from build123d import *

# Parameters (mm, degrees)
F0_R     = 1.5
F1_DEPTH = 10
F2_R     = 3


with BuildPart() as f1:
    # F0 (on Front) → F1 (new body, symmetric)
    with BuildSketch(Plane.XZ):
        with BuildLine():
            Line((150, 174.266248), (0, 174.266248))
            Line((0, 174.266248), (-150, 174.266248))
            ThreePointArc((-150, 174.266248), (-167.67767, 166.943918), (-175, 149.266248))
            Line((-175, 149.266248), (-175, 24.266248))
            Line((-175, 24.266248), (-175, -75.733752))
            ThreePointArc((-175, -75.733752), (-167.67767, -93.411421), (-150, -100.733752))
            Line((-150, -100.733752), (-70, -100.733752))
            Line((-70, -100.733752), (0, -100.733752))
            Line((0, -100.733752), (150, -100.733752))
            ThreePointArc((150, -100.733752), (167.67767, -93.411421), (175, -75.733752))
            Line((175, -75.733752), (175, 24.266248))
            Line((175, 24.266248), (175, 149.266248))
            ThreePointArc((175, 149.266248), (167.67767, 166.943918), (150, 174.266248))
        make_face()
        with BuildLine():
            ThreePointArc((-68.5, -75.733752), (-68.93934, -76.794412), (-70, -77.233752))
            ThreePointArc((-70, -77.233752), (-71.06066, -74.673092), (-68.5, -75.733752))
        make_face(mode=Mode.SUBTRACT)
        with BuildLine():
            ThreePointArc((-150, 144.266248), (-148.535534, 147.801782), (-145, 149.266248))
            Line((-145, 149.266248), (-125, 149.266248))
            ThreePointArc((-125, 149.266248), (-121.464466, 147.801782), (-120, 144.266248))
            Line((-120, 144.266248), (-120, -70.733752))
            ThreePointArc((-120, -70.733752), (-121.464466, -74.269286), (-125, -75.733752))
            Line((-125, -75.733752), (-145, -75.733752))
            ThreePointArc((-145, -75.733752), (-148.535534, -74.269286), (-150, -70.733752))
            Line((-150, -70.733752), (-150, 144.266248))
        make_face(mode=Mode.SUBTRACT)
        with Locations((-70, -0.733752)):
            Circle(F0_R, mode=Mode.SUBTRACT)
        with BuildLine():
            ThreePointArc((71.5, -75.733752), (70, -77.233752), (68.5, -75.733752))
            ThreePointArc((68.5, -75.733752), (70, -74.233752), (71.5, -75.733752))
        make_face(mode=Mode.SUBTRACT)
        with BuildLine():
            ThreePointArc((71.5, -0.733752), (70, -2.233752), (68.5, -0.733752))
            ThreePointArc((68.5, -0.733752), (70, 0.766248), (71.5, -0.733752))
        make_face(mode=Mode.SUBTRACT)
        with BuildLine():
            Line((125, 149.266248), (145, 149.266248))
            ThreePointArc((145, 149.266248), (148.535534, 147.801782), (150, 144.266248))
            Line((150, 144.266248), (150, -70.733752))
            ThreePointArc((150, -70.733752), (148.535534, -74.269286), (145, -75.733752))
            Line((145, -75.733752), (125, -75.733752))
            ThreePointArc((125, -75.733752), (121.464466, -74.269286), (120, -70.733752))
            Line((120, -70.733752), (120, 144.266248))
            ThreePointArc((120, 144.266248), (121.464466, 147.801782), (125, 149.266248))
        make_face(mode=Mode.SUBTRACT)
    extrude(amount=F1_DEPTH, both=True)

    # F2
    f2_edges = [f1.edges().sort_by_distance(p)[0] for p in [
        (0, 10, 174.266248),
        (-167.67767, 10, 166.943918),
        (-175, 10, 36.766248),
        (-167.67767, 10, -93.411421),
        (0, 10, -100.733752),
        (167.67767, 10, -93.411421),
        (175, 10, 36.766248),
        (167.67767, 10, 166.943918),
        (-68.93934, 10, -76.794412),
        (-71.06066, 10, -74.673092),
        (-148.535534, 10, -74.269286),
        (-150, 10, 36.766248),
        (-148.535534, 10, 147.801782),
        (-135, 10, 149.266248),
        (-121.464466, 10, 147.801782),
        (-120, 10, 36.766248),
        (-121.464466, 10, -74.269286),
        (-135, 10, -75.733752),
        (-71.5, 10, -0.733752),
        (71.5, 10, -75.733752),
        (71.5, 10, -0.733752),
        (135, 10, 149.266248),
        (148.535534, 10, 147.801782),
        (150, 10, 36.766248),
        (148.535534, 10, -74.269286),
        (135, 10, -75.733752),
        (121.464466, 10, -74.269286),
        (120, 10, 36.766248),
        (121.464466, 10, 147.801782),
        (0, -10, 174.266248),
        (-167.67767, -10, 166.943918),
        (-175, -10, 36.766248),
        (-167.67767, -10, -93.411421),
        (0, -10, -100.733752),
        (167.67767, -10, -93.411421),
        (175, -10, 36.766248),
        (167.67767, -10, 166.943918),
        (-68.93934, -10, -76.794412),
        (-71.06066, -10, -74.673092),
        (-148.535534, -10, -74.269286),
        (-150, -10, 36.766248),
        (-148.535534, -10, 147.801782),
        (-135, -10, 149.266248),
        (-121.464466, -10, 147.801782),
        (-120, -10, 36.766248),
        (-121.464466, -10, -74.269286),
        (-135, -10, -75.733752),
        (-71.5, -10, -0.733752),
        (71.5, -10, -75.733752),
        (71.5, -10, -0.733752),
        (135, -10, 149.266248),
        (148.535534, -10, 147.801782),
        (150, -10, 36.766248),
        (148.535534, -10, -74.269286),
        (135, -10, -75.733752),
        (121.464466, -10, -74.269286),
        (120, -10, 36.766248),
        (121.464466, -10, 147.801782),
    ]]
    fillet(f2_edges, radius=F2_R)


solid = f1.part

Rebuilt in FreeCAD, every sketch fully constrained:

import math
import FreeCAD as App
import Part
import Sketcher

V = App.Vector


def edges_at(feature, points):
    """Names of the edges that pass closest to the given points."""
    edges = feature.Shape.Edges
    near = lambda p: min(range(len(edges)), key=lambda i: edges[i].distToShape(Part.Vertex(*p))[0])
    return sorted({f"Edge{near(p) + 1}" for p in points})

doc = App.newDocument("Part")
params = doc.addObject("Spreadsheet::Sheet", "Params")
for row, (alias, value) in enumerate([
    ("sketch1_diameter", "3 mm"),
    ("sketch1_radius", "24.999998 mm"),
    ("sketch1_radius2", "5 mm"),
    ("sketch1_width", "300 mm"),
    ("sketch1_width2", "20 mm"),
    ("pad1_length", "20 mm"),
    ("fillet_radius", "3 mm"),
], start=1):
    params.set(f"A{row}", alias)
    params.set(f"B{row}", "=" + value)
    params.setAlias(f"B{row}", alias)

body = doc.addObject("PartDesign::Body", "Body")

sketch1 = body.newObject("Sketcher::SketchObject", "Sketch")
sketch1.AttachmentSupport = (doc.getObject("XZ_Plane"), [""])
sketch1.MapMode = "FlatFace"
sketch1.addGeometry([
    Part.LineSegment(V(150, 174.3, 0), V(-150, 174.3, 0)),
    Part.ArcOfCircle(Part.Circle(V(-150, 149.3, 0), V(0, 0, 1), 25), math.radians(90), math.radians(180)),
    Part.LineSegment(V(-175, 149.3, 0), V(-175, -75.7, 0)),
    Part.ArcOfCircle(Part.Circle(V(-150, -75.7, 0), V(0, 0, 1), 25), math.radians(-180), math.radians(-90)),
    Part.LineSegment(V(-150, -100.7, 0), V(150, -100.7, 0)),
    Part.ArcOfCircle(Part.Circle(V(150, -75.7, 0), V(0, 0, 1), 25), math.radians(-90), math.radians(0)),
    Part.LineSegment(V(175, -75.7, 0), V(175, 149.3, 0)),
    Part.ArcOfCircle(Part.Circle(V(150, 149.3, 0), V(0, 0, 1), 25), math.radians(0), math.radians(90)),
    Part.ArcOfCircle(Part.Circle(V(-70, -75.7, 0), V(0, 0, 1), 1.5), math.radians(0), math.radians(270)),
    Part.ArcOfCircle(Part.Circle(V(-70, -75.7, 0), V(0, 0, 1), 1.5), math.radians(-90), math.radians(0)),
    Part.Circle(V(-70, -0.7, 0), V(0, 0, 1), 1.5),
    Part.Circle(V(70, -75.7, 0), V(0, 0, 1), 1.5),
    Part.Circle(V(70, -0.7, 0), V(0, 0, 1), 1.5),
    Part.LineSegment(V(-150, -70.7, 0), V(-150, 144.3, 0)),
    Part.ArcOfCircle(Part.Circle(V(-145, 144.3, 0), V(0, 0, 1), 5), math.radians(90), math.radians(180)),
    Part.LineSegment(V(-145, 149.3, 0), V(-125, 149.3, 0)),
    Part.ArcOfCircle(Part.Circle(V(-125, 144.3, 0), V(0, 0, 1), 5), math.radians(0), math.radians(90)),
    Part.LineSegment(V(-120, 144.3, 0), V(-120, -70.7, 0)),
    Part.ArcOfCircle(Part.Circle(V(-125, -70.7, 0), V(0, 0, 1), 5), math.radians(-90), math.radians(0)),
    Part.LineSegment(V(-125, -75.7, 0), V(-145, -75.7, 0)),
    Part.ArcOfCircle(Part.Circle(V(-145, -70.7, 0), V(0, 0, 1), 5), math.radians(180), math.radians(270)),
    Part.ArcOfCircle(Part.Circle(V(125, 144.3, 0), V(0, 0, 1), 5), math.radians(90), math.radians(180)),
    Part.LineSegment(V(125, 149.3, 0), V(145, 149.3, 0)),
    Part.ArcOfCircle(Part.Circle(V(145, 144.3, 0), V(0, 0, 1), 5), math.radians(0), math.radians(90)),
    Part.LineSegment(V(150, 144.3, 0), V(150, -70.7, 0)),
    Part.ArcOfCircle(Part.Circle(V(145, -70.7, 0), V(0, 0, 1), 5), math.radians(-90), math.radians(0)),
    Part.LineSegment(V(145, -75.7, 0), V(125, -75.7, 0)),
    Part.ArcOfCircle(Part.Circle(V(125, -70.7, 0), V(0, 0, 1), 5), math.radians(180), math.radians(270)),
    Part.LineSegment(V(120, -70.7, 0), V(120, 144.3, 0)),
], False)
sketch1.addConstraint([
    Sketcher.Constraint("Tangent", 0, 2, 1, 1),
    Sketcher.Constraint("Tangent", 1, 2, 2, 1),
    Sketcher.Constraint("Tangent", 2, 2, 3, 1),
    Sketcher.Constraint("Tangent", 3, 2, 4, 1),
    Sketcher.Constraint("Tangent", 4, 2, 5, 1),
    Sketcher.Constraint("Tangent", 5, 2, 6, 1),
    Sketcher.Constraint("Tangent", 6, 2, 7, 1),
    Sketcher.Constraint("Tangent", 7, 2, 0, 1),
    Sketcher.Constraint("Tangent", 8, 1, 9, 2),
    Sketcher.Constraint("Coincident", 9, 1, 8, 2),
    Sketcher.Constraint("Tangent", 13, 2, 14, 2),
    Sketcher.Constraint("Tangent", 14, 1, 15, 1),
    Sketcher.Constraint("Tangent", 15, 2, 16, 2),
    Sketcher.Constraint("Tangent", 16, 1, 17, 1),
    Sketcher.Constraint("Tangent", 17, 2, 18, 2),
    Sketcher.Constraint("Tangent", 18, 1, 19, 1),
    Sketcher.Constraint("Tangent", 19, 2, 20, 2),
    Sketcher.Constraint("Tangent", 20, 1, 13, 1),
    Sketcher.Constraint("Tangent", 21, 1, 22, 1),
    Sketcher.Constraint("Tangent", 22, 2, 23, 2),
    Sketcher.Constraint("Tangent", 23, 1, 24, 1),
    Sketcher.Constraint("Tangent", 24, 2, 25, 2),
    Sketcher.Constraint("Tangent", 25, 1, 26, 1),
    Sketcher.Constraint("Tangent", 26, 2, 27, 2),
    Sketcher.Constraint("Tangent", 27, 1, 28, 1),
    Sketcher.Constraint("Tangent", 28, 2, 21, 2),
    Sketcher.Constraint("Horizontal", 0),
    Sketcher.Constraint("Vertical", 2),
    Sketcher.Constraint("Horizontal", 4),
    Sketcher.Constraint("Vertical", 6),
    Sketcher.Constraint("Vertical", 13),
    Sketcher.Constraint("Horizontal", 15),
    Sketcher.Constraint("Vertical", 17),
    Sketcher.Constraint("Horizontal", 19),
    Sketcher.Constraint("Horizontal", 22),
    Sketcher.Constraint("Vertical", 24),
    Sketcher.Constraint("Horizontal", 26),
    Sketcher.Constraint("Vertical", 28),
    Sketcher.Constraint("Equal", 1, 3),
    Sketcher.Constraint("Equal", 3, 5),
    Sketcher.Constraint("Equal", 5, 7),
    Sketcher.Constraint("Equal", 9, 10),
    Sketcher.Constraint("Equal", 10, 11),
    Sketcher.Constraint("Equal", 11, 12),
    Sketcher.Constraint("Equal", 14, 16),
    Sketcher.Constraint("Equal", 16, 18),
    Sketcher.Constraint("Equal", 18, 20),
    Sketcher.Constraint("Equal", 20, 21),
    Sketcher.Constraint("Equal", 21, 23),
    Sketcher.Constraint("Equal", 23, 25),
    Sketcher.Constraint("Equal", 25, 27),
    Sketcher.Constraint("Symmetric", 8, 3, 11, 3, -2),
    Sketcher.Constraint("Symmetric", 10, 3, 12, 3, -2),
    Sketcher.Constraint("Symmetric", 16, 3, 21, 3, -2),
    Sketcher.Constraint("Symmetric", 20, 3, 25, 3, -2),
    Sketcher.Constraint("Horizontal", 5, 3, 8, 3),
    Sketcher.Constraint("Horizontal", 5, 2, 8, 1),
    Sketcher.Constraint("Horizontal", 6, 2, 14, 1),
    Sketcher.Constraint("Horizontal", 8, 1, 18, 1),
    Sketcher.Constraint("Vertical", 9, 3, 10, 3),
    Sketcher.Constraint("Vertical", 10, 3, 9, 1),
    Sketcher.Constraint("Vertical", 3, 2, 13, 2),
    Sketcher.Constraint("Vertical", 7, 2, 23, 1),
    Sketcher.Constraint("Diameter", 10, 3.0),
    Sketcher.Constraint("Radius", 1, 24.999998),
    Sketcher.Constraint("Radius", 14, 5.0),
    Sketcher.Constraint("DistanceX", 0, 2, 0, 1, 300.0),
    Sketcher.Constraint("DistanceX", 15, 1, 15, 2, 20.0),
    Sketcher.Constraint("DistanceY", 2, 2, 2, 1, 225.0),
    Sketcher.Constraint("DistanceX", 8, 3, -1, 1, 70.0),
    Sketcher.Constraint("DistanceY", 9, 3, 10, 3, 74.999999),
    Sketcher.Constraint("DistanceY", -1, 1, 1, 3, 149.26625),
])
sketch1.setExpression("Constraints[63]", "Params.sketch1_diameter")
sketch1.setExpression("Constraints[64]", "Params.sketch1_radius")
sketch1.setExpression("Constraints[65]", "Params.sketch1_radius2")
sketch1.setExpression("Constraints[66]", "Params.sketch1_width")
sketch1.setExpression("Constraints[67]", "Params.sketch1_width2")
pad1 = body.newObject("PartDesign::Pad", "Pad")
pad1.Profile = sketch1
pad1.setExpression("Length", "Params.pad1_length")
pad1.Midplane = True
doc.recompute()

fillet = body.newObject("PartDesign::Fillet", "Fillet")
fillet.Base = (pad1, edges_at(pad1, [
    (0, 10, 174.266),
    (-167.678, 10, 166.944),
    (-175, 10, 36.766),
    (-167.678, 10, -93.411),
    (0, 10, -100.734),
    (167.678, 10, -93.411),
    (175, 10, 36.766),
    (167.678, 10, 166.944),
    (-68.939, 10, -76.794),
    (-71.061, 10, -74.673),
    (-148.536, 10, -74.269),
    (-150, 10, 36.766),
    (-148.536, 10, 147.802),
    (-135, 10, 149.266),
    (-121.464, 10, 147.802),
    (-120, 10, 36.766),
    (-121.464, 10, -74.269),
    (-135, 10, -75.734),
    (-71.5, 10, -0.734),
    (71.5, 10, -75.734),
    (71.5, 10, -0.734),
    (135, 10, 149.266),
    (148.536, 10, 147.802),
    (150, 10, 36.766),
    (148.536, 10, -74.269),
    (135, 10, -75.734),
    (121.464, 10, -74.269),
    (120, 10, 36.766),
    (121.464, 10, 147.802),
    (0, -10, 174.266),
    (-167.678, -10, 166.944),
    (-175, -10, 36.766),
    (-167.678, -10, -93.411),
    (0, -10, -100.734),
    (167.678, -10, -93.411),
    (175, -10, 36.766),
    (167.678, -10, 166.944),
    (-68.939, -10, -76.794),
    (-71.061, -10, -74.673),
    (-148.536, -10, -74.269),
    (-150, -10, 36.766),
    (-148.536, -10, 147.802),
    (-135, -10, 149.266),
    (-121.464, -10, 147.802),
    (-120, -10, 36.766),
    (-121.464, -10, -74.269),
    (-135, -10, -75.734),
    (-71.5, -10, -0.734),
    (71.5, -10, -75.734),
    (71.5, -10, -0.734),
    (135, -10, 149.266),
    (148.536, -10, 147.802),
    (150, -10, 36.766),
    (148.536, -10, -74.269),
    (135, -10, -75.734),
    (121.464, -10, -74.269),
    (120, -10, 36.766),
    (121.464, -10, 147.802),
]))
fillet.setExpression("Radius", "Params.fillet_radius")

doc.recompute()
